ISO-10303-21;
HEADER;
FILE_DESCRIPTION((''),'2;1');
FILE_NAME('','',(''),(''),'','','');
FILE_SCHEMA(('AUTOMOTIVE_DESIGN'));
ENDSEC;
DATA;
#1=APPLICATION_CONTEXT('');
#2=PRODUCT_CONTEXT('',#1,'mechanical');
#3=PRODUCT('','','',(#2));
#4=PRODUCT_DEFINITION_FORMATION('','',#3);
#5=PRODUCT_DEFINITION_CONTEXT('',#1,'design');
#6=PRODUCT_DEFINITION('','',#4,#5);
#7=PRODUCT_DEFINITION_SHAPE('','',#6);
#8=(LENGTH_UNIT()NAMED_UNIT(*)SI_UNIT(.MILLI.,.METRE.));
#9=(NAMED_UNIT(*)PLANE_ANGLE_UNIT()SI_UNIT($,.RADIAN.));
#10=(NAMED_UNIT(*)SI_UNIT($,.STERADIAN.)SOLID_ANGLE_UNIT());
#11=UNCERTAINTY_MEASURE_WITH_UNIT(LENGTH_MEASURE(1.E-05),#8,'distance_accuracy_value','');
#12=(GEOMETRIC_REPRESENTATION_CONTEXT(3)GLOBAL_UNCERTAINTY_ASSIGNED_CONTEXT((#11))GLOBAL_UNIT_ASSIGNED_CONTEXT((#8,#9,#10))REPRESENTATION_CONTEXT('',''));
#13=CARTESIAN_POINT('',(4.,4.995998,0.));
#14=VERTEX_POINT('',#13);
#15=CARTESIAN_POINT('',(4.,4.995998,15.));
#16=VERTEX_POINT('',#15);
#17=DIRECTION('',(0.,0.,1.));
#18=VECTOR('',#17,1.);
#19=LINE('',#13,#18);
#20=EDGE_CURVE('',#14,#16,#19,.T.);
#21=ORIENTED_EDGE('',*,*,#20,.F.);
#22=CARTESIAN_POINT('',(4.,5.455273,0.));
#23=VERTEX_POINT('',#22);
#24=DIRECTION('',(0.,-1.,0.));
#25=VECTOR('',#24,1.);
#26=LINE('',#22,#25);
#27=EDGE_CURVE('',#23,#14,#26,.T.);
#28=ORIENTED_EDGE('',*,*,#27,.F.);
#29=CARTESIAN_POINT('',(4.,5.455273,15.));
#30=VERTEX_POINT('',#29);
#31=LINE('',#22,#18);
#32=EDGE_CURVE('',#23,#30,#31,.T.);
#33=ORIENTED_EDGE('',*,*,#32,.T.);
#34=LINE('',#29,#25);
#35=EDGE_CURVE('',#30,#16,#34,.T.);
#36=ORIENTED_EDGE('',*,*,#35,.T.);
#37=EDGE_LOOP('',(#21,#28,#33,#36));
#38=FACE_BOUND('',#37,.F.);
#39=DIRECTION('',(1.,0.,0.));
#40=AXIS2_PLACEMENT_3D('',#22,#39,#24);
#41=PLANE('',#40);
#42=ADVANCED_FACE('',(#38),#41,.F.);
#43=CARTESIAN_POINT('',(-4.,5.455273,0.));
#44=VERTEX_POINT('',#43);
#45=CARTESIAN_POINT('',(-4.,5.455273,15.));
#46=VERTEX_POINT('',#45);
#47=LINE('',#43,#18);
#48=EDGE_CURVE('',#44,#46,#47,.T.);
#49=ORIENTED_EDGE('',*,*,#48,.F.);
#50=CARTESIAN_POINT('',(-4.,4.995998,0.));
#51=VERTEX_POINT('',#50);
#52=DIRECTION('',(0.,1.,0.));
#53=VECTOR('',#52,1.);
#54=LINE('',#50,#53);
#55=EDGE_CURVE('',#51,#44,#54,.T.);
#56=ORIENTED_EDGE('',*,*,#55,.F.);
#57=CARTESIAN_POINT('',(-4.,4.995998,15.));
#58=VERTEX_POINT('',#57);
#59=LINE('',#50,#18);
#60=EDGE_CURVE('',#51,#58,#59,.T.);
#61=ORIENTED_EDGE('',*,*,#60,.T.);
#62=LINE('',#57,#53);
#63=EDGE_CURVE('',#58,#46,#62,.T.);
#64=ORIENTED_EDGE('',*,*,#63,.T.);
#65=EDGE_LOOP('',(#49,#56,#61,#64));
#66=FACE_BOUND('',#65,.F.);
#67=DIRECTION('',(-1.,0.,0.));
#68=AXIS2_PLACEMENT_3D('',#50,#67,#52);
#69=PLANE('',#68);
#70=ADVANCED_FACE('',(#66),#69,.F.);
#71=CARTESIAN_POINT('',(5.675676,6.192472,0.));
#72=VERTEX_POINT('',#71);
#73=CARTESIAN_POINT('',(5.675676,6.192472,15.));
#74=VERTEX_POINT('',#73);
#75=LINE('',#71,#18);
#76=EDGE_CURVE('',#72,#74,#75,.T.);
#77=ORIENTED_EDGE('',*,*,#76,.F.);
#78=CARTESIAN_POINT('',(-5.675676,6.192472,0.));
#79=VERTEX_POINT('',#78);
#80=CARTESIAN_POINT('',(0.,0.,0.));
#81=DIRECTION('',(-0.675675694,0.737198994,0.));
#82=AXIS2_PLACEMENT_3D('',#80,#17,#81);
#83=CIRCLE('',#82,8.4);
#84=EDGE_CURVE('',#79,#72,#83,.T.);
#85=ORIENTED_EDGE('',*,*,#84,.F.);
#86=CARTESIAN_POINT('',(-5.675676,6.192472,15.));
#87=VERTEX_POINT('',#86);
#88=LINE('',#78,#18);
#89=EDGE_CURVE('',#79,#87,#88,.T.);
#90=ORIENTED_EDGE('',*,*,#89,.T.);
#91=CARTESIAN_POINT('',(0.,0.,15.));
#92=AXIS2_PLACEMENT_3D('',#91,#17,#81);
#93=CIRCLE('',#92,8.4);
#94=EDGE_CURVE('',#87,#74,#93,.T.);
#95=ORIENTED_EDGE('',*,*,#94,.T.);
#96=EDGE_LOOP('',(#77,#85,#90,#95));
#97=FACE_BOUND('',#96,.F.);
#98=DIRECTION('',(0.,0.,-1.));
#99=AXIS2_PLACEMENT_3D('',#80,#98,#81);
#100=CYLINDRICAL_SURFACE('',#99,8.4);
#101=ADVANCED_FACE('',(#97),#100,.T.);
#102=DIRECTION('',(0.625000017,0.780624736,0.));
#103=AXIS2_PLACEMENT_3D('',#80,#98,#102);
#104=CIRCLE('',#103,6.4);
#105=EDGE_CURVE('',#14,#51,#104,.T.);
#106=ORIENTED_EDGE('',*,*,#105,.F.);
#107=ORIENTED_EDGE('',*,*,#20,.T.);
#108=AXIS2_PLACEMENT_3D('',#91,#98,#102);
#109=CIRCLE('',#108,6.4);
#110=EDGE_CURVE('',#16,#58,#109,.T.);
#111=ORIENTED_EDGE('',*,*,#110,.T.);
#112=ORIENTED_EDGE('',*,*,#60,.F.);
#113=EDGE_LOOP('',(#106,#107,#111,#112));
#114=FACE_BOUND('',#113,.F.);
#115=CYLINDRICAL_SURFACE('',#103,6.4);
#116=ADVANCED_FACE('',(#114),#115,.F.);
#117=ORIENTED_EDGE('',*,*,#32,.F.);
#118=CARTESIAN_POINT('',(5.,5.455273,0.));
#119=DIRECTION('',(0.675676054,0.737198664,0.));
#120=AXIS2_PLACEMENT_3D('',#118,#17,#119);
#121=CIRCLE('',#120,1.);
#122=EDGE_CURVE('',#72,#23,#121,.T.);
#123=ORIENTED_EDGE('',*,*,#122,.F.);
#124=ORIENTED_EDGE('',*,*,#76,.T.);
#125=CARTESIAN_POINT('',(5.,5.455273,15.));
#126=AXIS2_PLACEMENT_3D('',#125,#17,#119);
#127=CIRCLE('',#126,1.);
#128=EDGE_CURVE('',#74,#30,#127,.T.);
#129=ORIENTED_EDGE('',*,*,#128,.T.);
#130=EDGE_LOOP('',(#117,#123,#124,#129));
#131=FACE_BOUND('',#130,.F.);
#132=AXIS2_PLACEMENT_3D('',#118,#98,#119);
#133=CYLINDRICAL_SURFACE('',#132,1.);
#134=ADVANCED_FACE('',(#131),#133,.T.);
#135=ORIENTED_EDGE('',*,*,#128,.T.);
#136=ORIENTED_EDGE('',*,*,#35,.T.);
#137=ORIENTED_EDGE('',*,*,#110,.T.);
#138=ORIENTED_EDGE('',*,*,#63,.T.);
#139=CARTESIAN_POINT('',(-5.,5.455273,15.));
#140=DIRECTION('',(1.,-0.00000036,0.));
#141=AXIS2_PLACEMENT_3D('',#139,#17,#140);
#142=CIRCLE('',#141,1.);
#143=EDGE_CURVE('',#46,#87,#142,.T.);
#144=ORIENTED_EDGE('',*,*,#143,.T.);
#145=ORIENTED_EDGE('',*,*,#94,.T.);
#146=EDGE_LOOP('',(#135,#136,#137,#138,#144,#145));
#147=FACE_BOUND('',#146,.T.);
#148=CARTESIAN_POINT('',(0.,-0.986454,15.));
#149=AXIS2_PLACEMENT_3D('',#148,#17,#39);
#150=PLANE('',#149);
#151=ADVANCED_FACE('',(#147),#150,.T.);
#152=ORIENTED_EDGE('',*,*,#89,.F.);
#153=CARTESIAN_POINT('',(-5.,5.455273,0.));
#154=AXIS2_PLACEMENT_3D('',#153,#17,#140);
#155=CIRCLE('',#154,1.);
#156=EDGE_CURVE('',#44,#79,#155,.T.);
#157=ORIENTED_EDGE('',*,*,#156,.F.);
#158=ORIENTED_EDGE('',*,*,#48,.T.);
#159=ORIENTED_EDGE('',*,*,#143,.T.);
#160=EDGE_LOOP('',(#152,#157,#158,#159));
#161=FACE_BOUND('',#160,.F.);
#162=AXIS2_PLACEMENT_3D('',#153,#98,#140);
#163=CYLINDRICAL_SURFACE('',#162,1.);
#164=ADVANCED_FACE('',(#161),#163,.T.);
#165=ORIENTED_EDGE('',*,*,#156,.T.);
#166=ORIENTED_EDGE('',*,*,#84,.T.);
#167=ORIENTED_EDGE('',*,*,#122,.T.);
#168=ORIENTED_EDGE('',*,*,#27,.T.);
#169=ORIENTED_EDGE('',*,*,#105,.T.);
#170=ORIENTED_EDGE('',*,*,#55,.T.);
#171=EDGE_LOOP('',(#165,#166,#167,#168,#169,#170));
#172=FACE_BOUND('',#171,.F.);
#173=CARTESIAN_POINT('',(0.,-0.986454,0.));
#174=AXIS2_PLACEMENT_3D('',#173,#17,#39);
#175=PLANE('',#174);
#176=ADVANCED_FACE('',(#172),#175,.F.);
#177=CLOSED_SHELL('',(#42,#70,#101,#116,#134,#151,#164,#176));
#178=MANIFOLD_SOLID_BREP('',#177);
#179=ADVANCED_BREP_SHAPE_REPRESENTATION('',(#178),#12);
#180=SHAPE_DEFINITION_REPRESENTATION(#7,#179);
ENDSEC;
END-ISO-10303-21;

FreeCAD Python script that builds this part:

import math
import FreeCAD as App
import Part
import Sketcher
Q = App.Units.Quantity

doc = App.newDocument("Part")
params = doc.addObject("Spreadsheet::Sheet", "Params")
for row, (alias, value) in enumerate([
    ("sketch1_radius", "1 mm"),
    ("sketch1_radius2", "6.4 mm"),
    ("sketch1_radius3", "8.4 mm"),
    ("pad1_length", "15 mm"),
], start=1):
    params.set(f"A{row}", alias)
    params.set(f"B{row}", "=" + value)
    params.setAlias(f"B{row}", alias)

body = doc.addObject("PartDesign::Body", "Body")

# Sketch on XY plane
sketch1 = doc.addObject("Sketcher::SketchObject", "Sketch")
body.addObject(sketch1)
sketch1.AttachmentSupport = (doc.XY_Plane, [""])
sketch1.MapMode = "FlatFace"
sketch1.addGeometry([
    Part.LineSegment(App.Vector(4, 5.46, 0), App.Vector(4, 5, 0)),  # 0
    Part.ArcOfCircle(Part.Circle(App.Vector(0, 0, 0), App.Vector(0, 0, 1), 6.4), math.radians(129), math.radians(411)),  # 1
    Part.LineSegment(App.Vector(-4, 5, 0), App.Vector(-4, 5.46, 0)),  # 2
    Part.ArcOfCircle(Part.Circle(App.Vector(-5, 5.46, 0), App.Vector(0, 0, 1), 1), math.radians(0), math.radians(133)),  # 3
    Part.ArcOfCircle(Part.Circle(App.Vector(0, 0, 0), App.Vector(0, 0, 1), 8.4), math.radians(133), math.radians(407)),  # 4
    Part.ArcOfCircle(Part.Circle(App.Vector(5, 5.46, 0), App.Vector(0, 0, 1), 1), math.radians(47), math.radians(180)),  # 5
], False)
sketch1.addConstraint([
    Sketcher.Constraint("Coincident", 0, 2, 1, 2),
    Sketcher.Constraint("Coincident", 1, 1, 2, 1),
    Sketcher.Constraint("Tangent", 2, 2, 3, 1),
    Sketcher.Constraint("Tangent", 3, 2, 4, 1),
    Sketcher.Constraint("Tangent", 4, 2, 5, 1),
    Sketcher.Constraint("Tangent", 5, 2, 0, 1),
    Sketcher.Constraint("Vertical", 0),
    Sketcher.Constraint("Vertical", 2),
    Sketcher.Constraint("Coincident", 1, 3, -1, 1),
    Sketcher.Constraint("Coincident", 4, 3, -1, 1),
    Sketcher.Constraint("Equal", 3, 5),
    Sketcher.Constraint("Horizontal", 3, 3, 5, 3),
    Sketcher.Constraint("Radius", 3, Q("1 mm")),
    Sketcher.Constraint("Radius", 1, Q("6.4 mm")),
    Sketcher.Constraint("Radius", 4, Q("8.4 mm")),
    Sketcher.Constraint("DistanceX", 3, 3, -1, 1, Q("5 mm")),
])
sketch1.setExpression("Constraints[12]", "Params.sketch1_radius")
sketch1.setExpression("Constraints[13]", "Params.sketch1_radius2")
sketch1.setExpression("Constraints[14]", "Params.sketch1_radius3")
pad1 = doc.addObject("PartDesign::Pad", "Pad")
body.addObject(pad1)
pad1.Profile = sketch1
pad1.setExpression("Length", "Params.pad1_length")

doc.recompute()
